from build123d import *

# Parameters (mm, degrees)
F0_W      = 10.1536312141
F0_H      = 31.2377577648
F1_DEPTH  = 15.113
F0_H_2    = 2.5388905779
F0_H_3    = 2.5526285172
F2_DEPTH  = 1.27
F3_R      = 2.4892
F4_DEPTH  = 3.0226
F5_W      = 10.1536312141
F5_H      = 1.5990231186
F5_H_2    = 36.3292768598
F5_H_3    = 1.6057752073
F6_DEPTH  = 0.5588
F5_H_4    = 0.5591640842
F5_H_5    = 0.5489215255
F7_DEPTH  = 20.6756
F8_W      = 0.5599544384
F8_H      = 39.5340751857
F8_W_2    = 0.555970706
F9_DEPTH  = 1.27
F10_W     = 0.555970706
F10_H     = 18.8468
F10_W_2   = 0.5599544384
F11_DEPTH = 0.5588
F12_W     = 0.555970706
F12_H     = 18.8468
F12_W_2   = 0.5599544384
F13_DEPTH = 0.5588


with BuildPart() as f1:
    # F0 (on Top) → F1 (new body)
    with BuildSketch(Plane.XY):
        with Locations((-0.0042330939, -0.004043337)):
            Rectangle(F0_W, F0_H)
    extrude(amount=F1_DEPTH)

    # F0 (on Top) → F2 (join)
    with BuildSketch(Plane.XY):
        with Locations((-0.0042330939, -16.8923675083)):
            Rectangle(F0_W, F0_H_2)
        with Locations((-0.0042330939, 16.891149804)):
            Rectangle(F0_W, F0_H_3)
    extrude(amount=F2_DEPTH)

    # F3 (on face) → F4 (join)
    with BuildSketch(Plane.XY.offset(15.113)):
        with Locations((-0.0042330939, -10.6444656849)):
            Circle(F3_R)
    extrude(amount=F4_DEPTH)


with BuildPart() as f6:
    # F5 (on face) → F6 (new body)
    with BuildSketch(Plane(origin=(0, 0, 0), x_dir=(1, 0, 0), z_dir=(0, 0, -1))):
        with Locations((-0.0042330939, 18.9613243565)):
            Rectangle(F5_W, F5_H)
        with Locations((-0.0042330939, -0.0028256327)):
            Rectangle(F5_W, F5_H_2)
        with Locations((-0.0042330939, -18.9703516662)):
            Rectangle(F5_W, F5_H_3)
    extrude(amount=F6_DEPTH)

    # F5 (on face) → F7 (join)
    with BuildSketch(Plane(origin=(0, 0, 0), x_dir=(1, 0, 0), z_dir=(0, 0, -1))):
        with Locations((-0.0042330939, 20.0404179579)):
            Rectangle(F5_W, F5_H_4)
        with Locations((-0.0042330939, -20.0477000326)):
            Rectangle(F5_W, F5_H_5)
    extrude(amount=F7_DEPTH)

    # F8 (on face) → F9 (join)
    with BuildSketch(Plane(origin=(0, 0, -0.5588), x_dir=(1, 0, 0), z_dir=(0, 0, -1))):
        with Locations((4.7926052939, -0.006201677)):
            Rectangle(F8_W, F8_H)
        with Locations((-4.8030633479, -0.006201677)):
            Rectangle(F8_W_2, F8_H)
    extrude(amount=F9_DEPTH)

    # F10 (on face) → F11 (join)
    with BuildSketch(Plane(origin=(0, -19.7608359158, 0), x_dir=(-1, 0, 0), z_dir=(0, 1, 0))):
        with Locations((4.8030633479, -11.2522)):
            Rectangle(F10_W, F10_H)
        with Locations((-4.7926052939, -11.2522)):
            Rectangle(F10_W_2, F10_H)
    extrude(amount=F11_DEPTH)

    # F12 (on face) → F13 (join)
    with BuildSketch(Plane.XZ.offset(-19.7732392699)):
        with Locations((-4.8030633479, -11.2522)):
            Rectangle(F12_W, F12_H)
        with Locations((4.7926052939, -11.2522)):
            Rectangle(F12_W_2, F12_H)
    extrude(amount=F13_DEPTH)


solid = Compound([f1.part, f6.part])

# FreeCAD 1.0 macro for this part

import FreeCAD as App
import Part
import Sketcher
from FreeCAD import Vector
Q = App.Units.Quantity


def add_polygon(sketch, points):
    """Adds a closed chain of lines whose ends are joined by coincident constraints."""
    first, n = sketch.GeometryCount, len(points)
    for a, b in zip(points, points[1:] + points[:1]):
        sketch.addGeometry(Part.LineSegment(App.Vector(*a, 0), App.Vector(*b, 0)), False)
    for i in range(n):
        sketch.addConstraint(Sketcher.Constraint("Coincident", first + i, 2, first + (i + 1) % n, 1))

doc = App.newDocument("Part")
body = doc.addObject("PartDesign::Body", "Body")

# Sketch on XY plane
sketch1 = body.newObject("Sketcher::SketchObject", "Sketch")
sketch1.AttachmentSupport = (doc.getObject("XY_Plane"), [""])
sketch1.MapMode = "FlatFace"
add_polygon(sketch1, [(-5, 16), (-5, -16), (5, -16), (5, 16)])  # lines 0-3
sketch1.addConstraint([
    Sketcher.Constraint("Vertical", 0),
    Sketcher.Constraint("Horizontal", 1),
    Sketcher.Constraint("Vertical", 2),
    Sketcher.Constraint("Horizontal", 3),
    Sketcher.Constraint("DistanceX", 1, 1, 1, 2, Q("10.153631 mm")),
    Sketcher.Constraint("DistanceY", 0, 2, 0, 1, Q("31.237758 mm")),
    Sketcher.Constraint("DistanceX", 0, 2, -1, 1, Q("5.081049 mm")),
    Sketcher.Constraint("DistanceY", 0, 2, -1, 1, Q("15.622922 mm")),
])
pad1 = body.newObject("PartDesign::Pad", "Pad")
pad1.Profile = sketch1
pad1.Length = Q("0.595 in")

# Sketch on XY plane
sketch2 = body.newObject("Sketcher::SketchObject", "Sketch001")
sketch2.AttachmentSupport = (doc.getObject("XY_Plane"), [""])
sketch2.MapMode = "FlatFace"
add_polygon(sketch2, [(-5.1, -15.6), (-5.1, -18.2), (5.1, -18.2), (5.1, -15.6)])  # lines 0-3
add_polygon(sketch2, [(-5.1, 18.2), (-5.1, 15.6), (5.1, 15.6), (5.1, 18.2)])  # lines 4-7
sketch2.addConstraint([
    Sketcher.Constraint("Vertical", 0),
    Sketcher.Constraint("Horizontal", 1),
    Sketcher.Constraint("Vertical", 2),
    Sketcher.Constraint("Horizontal", 3),
    Sketcher.Constraint("Vertical", 4),
    Sketcher.Constraint("Horizontal", 5),
    Sketcher.Constraint("Vertical", 6),
    Sketcher.Constraint("Horizontal", 7),
    Sketcher.Constraint("Vertical", 3, 2, 4, 2),
    Sketcher.Constraint("Vertical", 2, 2, 5, 2),
    Sketcher.Constraint("DistanceX", 1, 1, 1, 2, Q("10.153631 mm")),
    Sketcher.Constraint("DistanceY", 0, 2, 0, 1, Q("2.538891 mm")),
    Sketcher.Constraint("DistanceY", 4, 2, 4, 1, Q("2.552629 mm")),
    Sketcher.Constraint("DistanceX", 0, 2, -1, 1, Q("5.081049 mm")),
    Sketcher.Constraint("DistanceY", 0, 2, 4, 2, Q("33.776648 mm")),
    Sketcher.Constraint("DistanceY", 0, 2, -1, 1, Q("18.161813 mm")),
])
pad2 = body.newObject("PartDesign::Pad", "Pad001")
pad2.Profile = sketch2
pad2.Length = Q("0.05 in")

# Sketch on XY plane
sketch3 = body.newObject("Sketcher::SketchObject", "Sketch002")
sketch3.AttachmentSupport = (doc.getObject("XY_Plane"), [""])
sketch3.MapMode = "FlatFace"
sketch3.AttachmentOffset = App.Placement(Vector(0, 0, 0.595 * 25.4), App.Rotation())
sketch3.addGeometry(Part.Circle(Vector(0, -10.6, 0), Vector(0, 0, 1), 2.5), False)
sketch3.addConstraint([
    Sketcher.Constraint("Diameter", 0, Q("0.196 in")),
    Sketcher.Constraint("DistanceX", 0, 3, -1, 1, Q("0.004233 mm")),
    Sketcher.Constraint("DistanceY", 0, 3, -1, 1, Q("10.644466 mm")),
])
pad3 = body.newObject("PartDesign::Pad", "Pad002")
pad3.Profile = sketch3
pad3.Length = Q("0.119 in")
body2 = doc.addObject("PartDesign::Body", "Body001")

# Sketch on XY plane
sketch4 = body2.newObject("Sketcher::SketchObject", "Sketch003")
sketch4.AttachmentSupport = (doc.getObject("XY_Plane001"), [""])
sketch4.MapMode = "FlatFace"
add_polygon(sketch4, [(-5, -20), (-5, 20), (5, 20), (5, -20)])  # lines 0-3
sketch4.addConstraint([
    Sketcher.Constraint("Vertical", 0),
    Sketcher.Constraint("Horizontal", 1),
    Sketcher.Constraint("Vertical", 2),
    Sketcher.Constraint("Horizontal", 3),
    Sketcher.Constraint("DistanceX", 1, 1, 1, 2, Q("10.153631 mm")),
    Sketcher.Constraint("DistanceY", 0, 1, 0, 2, Q("39.534075 mm")),
    Sketcher.Constraint("DistanceX", 0, 2, -1, 1, Q("5.081049 mm")),
    Sketcher.Constraint("DistanceY", -1, 1, 0, 2, Q("19.773239 mm")),
])
pad4 = body2.newObject("PartDesign::Pad", "Pad003")
pad4.Profile = sketch4
pad4.Length = Q("0.022 in")
pad4.Reversed = True

# Sketch on XY plane
sketch5 = body2.newObject("Sketcher::SketchObject", "Sketch004")
sketch5.AttachmentSupport = (doc.getObject("XY_Plane001"), [""])
sketch5.MapMode = "FlatFace"
add_polygon(sketch5, [(-5.1, -20.3), (-5.1, -19.8), (5.1, -19.8), (5.1, -20.3)])  # lines 0-3
add_polygon(sketch5, [(-5.1, 19.8), (-5.1, 20.3), (5.1, 20.3), (5.1, 19.8)])  # lines 4-7
sketch5.addConstraint([
    Sketcher.Constraint("Vertical", 0),
    Sketcher.Constraint("Horizontal", 1),
    Sketcher.Constraint("Vertical", 2),
    Sketcher.Constraint("Horizontal", 3),
    Sketcher.Constraint("Vertical", 4),
    Sketcher.Constraint("Horizontal", 5),
    Sketcher.Constraint("Vertical", 6),
    Sketcher.Constraint("Horizontal", 7),
    Sketcher.Constraint("Vertical", 3, 2, 4, 2),
    Sketcher.Constraint("Vertical", 2, 2, 5, 2),
    Sketcher.Constraint("DistanceY", 2, 2, -1, 1, Q("0.8 in")),
    Sketcher.Constraint("DistanceX", 1, 1, 1, 2, Q("10.153631 mm")),
    Sketcher.Constraint("DistanceY", 4, 1, 4, 2, Q("0.548922 mm")),
    Sketcher.Constraint("DistanceY", 0, 1, 0, 2, Q("0.559164 mm")),
    Sketcher.Constraint("DistanceX", 0, 2, -1, 1, Q("5.081049 mm")),
    Sketcher.Constraint("DistanceY", -1, 1, 4, 2, Q("20.322161 mm")),
])
pad5 = body2.newObject("PartDesign::Pad", "Pad004")
pad5.Profile = sketch5
pad5.Length = Q("0.814 in")
pad5.Reversed = True

# Sketch on XY plane
sketch6 = body2.newObject("Sketcher::SketchObject", "Sketch005")
sketch6.AttachmentSupport = (doc.getObject("XY_Plane001"), [""])
sketch6.MapMode = "FlatFace"
sketch6.AttachmentOffset = App.Placement(Vector(0, 0, -0.022 * 25.4), App.Rotation())
add_polygon(sketch6, [(4.5, -19.8), (4.5, 19.8), (5.1, 19.8), (5.1, -19.8)])  # lines 0-3
add_polygon(sketch6, [(-5.1, -19.8), (-5.1, 19.8), (-4.5, 19.8), (-4.5, -19.8)])  # lines 4-7
sketch6.addConstraint([
    Sketcher.Constraint("Vertical", 0),
    Sketcher.Constraint("Horizontal", 1),
    Sketcher.Constraint("Vertical", 2),
    Sketcher.Constraint("Horizontal", 3),
    Sketcher.Constraint("Vertical", 4),
    Sketcher.Constraint("Horizontal", 5),
    Sketcher.Constraint("Vertical", 6),
    Sketcher.Constraint("Horizontal", 7),
    Sketcher.Constraint("Horizontal", 1, 2, 4, 2),
    Sketcher.Constraint("Horizontal", 3, 2, 6, 2),
    Sketcher.Constraint("DistanceX", 5, 1, 5, 2, Q("0.555971 mm")),
    Sketcher.Constraint("DistanceX", 1, 1, 1, 2, Q("0.559954 mm")),
    Sketcher.Constraint("DistanceY", 0, 1, 0, 2, Q("39.534075 mm")),
    Sketcher.Constraint("DistanceX", -1, 1, 0, 2, Q("4.512628 mm")),
    Sketcher.Constraint("DistanceY", -1, 1, 0, 2, Q("19.773239 mm")),
    Sketcher.Constraint("DistanceX", 4, 2, -1, 1, Q("5.081049 mm")),
])
pad6 = body2.newObject("PartDesign::Pad", "Pad005")
pad6.Profile = sketch6
pad6.Length = Q("0.05 in")
pad6.Reversed = True

# Sketch on XZ plane
sketch7 = body2.newObject("Sketcher::SketchObject", "Sketch006")
sketch7.AttachmentSupport = (doc.getObject("XZ_Plane001"), [""])
sketch7.MapMode = "FlatFace"
sketch7.AttachmentOffset = App.Placement(Vector(0, 0, 19.760836), App.Rotation())
add_polygon(sketch7, [(-4.5, -1.8), (-4.5, -20.7), (-5.1, -20.7), (-5.1, -1.8)])  # lines 0-3
add_polygon(sketch7, [(5.1, -1.8), (5.1, -20.7), (4.5, -20.7), (4.5, -1.8)])  # lines 4-7
sketch7.addConstraint([
    Sketcher.Constraint("Vertical", 0),
    Sketcher.Constraint("Horizontal", 1),
    Sketcher.Constraint("Vertical", 2),
    Sketcher.Constraint("Horizontal", 3),
    Sketcher.Constraint("Vertical", 4),
    Sketcher.Constraint("Horizontal", 5),
    Sketcher.Constraint("Vertical", 6),
    Sketcher.Constraint("Horizontal", 7),
    Sketcher.Constraint("Horizontal", 1, 2, 4, 2),
    Sketcher.Constraint("Horizontal", 3, 2, 6, 2),
    Sketcher.Constraint("DistanceY", 0, 2, 0, 1, Q("0.742 in")),
    Sketcher.Constraint("DistanceY", 0, 2, -1, 1, Q("0.814 in")),
    Sketcher.Constraint("DistanceX", 1, 2, 1, 1, Q("0.555971 mm")),
    Sketcher.Constraint("DistanceX", 5, 2, 5, 1, Q("0.559954 mm")),
    Sketcher.Constraint("DistanceX", 1, 2, -1, 1, Q("5.081049 mm")),
    Sketcher.Constraint("DistanceX", -1, 1, 5, 2, Q("4.512628 mm")),
])
pad7 = body2.newObject("PartDesign::Pad", "Pad006")
pad7.Profile = sketch7
pad7.Length = Q("0.022 in")
pad7.Reversed = True

# Sketch on XZ plane
sketch8 = body2.newObject("Sketcher::SketchObject", "Sketch007")
sketch8.AttachmentSupport = (doc.getObject("XZ_Plane001"), [""])
sketch8.MapMode = "FlatFace"
sketch8.AttachmentOffset = App.Placement(Vector(0, 0, -19.773239), App.Rotation())
add_polygon(sketch8, [(-5.1, -1.8), (-5.1, -20.7), (-4.5, -20.7), (-4.5, -1.8)])  # lines 0-3
add_polygon(sketch8, [(4.5, -1.8), (4.5, -20.7), (5.1, -20.7), (5.1, -1.8)])  # lines 4-7
sketch8.addConstraint([
    Sketcher.Constraint("Vertical", 0),
    Sketcher.Constraint("Horizontal", 1),
    Sketcher.Constraint("Vertical", 2),
    Sketcher.Constraint("Horizontal", 3),
    Sketcher.Constraint("Vertical", 4),
    Sketcher.Constraint("Horizontal", 5),
    Sketcher.Constraint("Vertical", 6),
    Sketcher.Constraint("Horizontal", 7),
    Sketcher.Constraint("Horizontal", 1, 2, 4, 2),
    Sketcher.Constraint("Horizontal", 3, 2, 6, 2),
    Sketcher.Constraint("DistanceY", 0, 2, 0, 1, Q("0.742 in")),
    Sketcher.Constraint("DistanceY", 0, 2, -1, 1, Q("0.814 in")),
    Sketcher.Constraint("DistanceX", 1, 1, 1, 2, Q("0.555971 mm")),
    Sketcher.Constraint("DistanceX", 5, 1, 5, 2, Q("0.559954 mm")),
    Sketcher.Constraint("DistanceX", 0, 2, -1, 1, Q("5.081049 mm")),
    Sketcher.Constraint("DistanceX", -1, 1, 4, 2, Q("4.512628 mm")),
])
pad8 = body2.newObject("PartDesign::Pad", "Pad007")
pad8.Profile = sketch8
pad8.Length = Q("0.022 in")

doc.recompute()
